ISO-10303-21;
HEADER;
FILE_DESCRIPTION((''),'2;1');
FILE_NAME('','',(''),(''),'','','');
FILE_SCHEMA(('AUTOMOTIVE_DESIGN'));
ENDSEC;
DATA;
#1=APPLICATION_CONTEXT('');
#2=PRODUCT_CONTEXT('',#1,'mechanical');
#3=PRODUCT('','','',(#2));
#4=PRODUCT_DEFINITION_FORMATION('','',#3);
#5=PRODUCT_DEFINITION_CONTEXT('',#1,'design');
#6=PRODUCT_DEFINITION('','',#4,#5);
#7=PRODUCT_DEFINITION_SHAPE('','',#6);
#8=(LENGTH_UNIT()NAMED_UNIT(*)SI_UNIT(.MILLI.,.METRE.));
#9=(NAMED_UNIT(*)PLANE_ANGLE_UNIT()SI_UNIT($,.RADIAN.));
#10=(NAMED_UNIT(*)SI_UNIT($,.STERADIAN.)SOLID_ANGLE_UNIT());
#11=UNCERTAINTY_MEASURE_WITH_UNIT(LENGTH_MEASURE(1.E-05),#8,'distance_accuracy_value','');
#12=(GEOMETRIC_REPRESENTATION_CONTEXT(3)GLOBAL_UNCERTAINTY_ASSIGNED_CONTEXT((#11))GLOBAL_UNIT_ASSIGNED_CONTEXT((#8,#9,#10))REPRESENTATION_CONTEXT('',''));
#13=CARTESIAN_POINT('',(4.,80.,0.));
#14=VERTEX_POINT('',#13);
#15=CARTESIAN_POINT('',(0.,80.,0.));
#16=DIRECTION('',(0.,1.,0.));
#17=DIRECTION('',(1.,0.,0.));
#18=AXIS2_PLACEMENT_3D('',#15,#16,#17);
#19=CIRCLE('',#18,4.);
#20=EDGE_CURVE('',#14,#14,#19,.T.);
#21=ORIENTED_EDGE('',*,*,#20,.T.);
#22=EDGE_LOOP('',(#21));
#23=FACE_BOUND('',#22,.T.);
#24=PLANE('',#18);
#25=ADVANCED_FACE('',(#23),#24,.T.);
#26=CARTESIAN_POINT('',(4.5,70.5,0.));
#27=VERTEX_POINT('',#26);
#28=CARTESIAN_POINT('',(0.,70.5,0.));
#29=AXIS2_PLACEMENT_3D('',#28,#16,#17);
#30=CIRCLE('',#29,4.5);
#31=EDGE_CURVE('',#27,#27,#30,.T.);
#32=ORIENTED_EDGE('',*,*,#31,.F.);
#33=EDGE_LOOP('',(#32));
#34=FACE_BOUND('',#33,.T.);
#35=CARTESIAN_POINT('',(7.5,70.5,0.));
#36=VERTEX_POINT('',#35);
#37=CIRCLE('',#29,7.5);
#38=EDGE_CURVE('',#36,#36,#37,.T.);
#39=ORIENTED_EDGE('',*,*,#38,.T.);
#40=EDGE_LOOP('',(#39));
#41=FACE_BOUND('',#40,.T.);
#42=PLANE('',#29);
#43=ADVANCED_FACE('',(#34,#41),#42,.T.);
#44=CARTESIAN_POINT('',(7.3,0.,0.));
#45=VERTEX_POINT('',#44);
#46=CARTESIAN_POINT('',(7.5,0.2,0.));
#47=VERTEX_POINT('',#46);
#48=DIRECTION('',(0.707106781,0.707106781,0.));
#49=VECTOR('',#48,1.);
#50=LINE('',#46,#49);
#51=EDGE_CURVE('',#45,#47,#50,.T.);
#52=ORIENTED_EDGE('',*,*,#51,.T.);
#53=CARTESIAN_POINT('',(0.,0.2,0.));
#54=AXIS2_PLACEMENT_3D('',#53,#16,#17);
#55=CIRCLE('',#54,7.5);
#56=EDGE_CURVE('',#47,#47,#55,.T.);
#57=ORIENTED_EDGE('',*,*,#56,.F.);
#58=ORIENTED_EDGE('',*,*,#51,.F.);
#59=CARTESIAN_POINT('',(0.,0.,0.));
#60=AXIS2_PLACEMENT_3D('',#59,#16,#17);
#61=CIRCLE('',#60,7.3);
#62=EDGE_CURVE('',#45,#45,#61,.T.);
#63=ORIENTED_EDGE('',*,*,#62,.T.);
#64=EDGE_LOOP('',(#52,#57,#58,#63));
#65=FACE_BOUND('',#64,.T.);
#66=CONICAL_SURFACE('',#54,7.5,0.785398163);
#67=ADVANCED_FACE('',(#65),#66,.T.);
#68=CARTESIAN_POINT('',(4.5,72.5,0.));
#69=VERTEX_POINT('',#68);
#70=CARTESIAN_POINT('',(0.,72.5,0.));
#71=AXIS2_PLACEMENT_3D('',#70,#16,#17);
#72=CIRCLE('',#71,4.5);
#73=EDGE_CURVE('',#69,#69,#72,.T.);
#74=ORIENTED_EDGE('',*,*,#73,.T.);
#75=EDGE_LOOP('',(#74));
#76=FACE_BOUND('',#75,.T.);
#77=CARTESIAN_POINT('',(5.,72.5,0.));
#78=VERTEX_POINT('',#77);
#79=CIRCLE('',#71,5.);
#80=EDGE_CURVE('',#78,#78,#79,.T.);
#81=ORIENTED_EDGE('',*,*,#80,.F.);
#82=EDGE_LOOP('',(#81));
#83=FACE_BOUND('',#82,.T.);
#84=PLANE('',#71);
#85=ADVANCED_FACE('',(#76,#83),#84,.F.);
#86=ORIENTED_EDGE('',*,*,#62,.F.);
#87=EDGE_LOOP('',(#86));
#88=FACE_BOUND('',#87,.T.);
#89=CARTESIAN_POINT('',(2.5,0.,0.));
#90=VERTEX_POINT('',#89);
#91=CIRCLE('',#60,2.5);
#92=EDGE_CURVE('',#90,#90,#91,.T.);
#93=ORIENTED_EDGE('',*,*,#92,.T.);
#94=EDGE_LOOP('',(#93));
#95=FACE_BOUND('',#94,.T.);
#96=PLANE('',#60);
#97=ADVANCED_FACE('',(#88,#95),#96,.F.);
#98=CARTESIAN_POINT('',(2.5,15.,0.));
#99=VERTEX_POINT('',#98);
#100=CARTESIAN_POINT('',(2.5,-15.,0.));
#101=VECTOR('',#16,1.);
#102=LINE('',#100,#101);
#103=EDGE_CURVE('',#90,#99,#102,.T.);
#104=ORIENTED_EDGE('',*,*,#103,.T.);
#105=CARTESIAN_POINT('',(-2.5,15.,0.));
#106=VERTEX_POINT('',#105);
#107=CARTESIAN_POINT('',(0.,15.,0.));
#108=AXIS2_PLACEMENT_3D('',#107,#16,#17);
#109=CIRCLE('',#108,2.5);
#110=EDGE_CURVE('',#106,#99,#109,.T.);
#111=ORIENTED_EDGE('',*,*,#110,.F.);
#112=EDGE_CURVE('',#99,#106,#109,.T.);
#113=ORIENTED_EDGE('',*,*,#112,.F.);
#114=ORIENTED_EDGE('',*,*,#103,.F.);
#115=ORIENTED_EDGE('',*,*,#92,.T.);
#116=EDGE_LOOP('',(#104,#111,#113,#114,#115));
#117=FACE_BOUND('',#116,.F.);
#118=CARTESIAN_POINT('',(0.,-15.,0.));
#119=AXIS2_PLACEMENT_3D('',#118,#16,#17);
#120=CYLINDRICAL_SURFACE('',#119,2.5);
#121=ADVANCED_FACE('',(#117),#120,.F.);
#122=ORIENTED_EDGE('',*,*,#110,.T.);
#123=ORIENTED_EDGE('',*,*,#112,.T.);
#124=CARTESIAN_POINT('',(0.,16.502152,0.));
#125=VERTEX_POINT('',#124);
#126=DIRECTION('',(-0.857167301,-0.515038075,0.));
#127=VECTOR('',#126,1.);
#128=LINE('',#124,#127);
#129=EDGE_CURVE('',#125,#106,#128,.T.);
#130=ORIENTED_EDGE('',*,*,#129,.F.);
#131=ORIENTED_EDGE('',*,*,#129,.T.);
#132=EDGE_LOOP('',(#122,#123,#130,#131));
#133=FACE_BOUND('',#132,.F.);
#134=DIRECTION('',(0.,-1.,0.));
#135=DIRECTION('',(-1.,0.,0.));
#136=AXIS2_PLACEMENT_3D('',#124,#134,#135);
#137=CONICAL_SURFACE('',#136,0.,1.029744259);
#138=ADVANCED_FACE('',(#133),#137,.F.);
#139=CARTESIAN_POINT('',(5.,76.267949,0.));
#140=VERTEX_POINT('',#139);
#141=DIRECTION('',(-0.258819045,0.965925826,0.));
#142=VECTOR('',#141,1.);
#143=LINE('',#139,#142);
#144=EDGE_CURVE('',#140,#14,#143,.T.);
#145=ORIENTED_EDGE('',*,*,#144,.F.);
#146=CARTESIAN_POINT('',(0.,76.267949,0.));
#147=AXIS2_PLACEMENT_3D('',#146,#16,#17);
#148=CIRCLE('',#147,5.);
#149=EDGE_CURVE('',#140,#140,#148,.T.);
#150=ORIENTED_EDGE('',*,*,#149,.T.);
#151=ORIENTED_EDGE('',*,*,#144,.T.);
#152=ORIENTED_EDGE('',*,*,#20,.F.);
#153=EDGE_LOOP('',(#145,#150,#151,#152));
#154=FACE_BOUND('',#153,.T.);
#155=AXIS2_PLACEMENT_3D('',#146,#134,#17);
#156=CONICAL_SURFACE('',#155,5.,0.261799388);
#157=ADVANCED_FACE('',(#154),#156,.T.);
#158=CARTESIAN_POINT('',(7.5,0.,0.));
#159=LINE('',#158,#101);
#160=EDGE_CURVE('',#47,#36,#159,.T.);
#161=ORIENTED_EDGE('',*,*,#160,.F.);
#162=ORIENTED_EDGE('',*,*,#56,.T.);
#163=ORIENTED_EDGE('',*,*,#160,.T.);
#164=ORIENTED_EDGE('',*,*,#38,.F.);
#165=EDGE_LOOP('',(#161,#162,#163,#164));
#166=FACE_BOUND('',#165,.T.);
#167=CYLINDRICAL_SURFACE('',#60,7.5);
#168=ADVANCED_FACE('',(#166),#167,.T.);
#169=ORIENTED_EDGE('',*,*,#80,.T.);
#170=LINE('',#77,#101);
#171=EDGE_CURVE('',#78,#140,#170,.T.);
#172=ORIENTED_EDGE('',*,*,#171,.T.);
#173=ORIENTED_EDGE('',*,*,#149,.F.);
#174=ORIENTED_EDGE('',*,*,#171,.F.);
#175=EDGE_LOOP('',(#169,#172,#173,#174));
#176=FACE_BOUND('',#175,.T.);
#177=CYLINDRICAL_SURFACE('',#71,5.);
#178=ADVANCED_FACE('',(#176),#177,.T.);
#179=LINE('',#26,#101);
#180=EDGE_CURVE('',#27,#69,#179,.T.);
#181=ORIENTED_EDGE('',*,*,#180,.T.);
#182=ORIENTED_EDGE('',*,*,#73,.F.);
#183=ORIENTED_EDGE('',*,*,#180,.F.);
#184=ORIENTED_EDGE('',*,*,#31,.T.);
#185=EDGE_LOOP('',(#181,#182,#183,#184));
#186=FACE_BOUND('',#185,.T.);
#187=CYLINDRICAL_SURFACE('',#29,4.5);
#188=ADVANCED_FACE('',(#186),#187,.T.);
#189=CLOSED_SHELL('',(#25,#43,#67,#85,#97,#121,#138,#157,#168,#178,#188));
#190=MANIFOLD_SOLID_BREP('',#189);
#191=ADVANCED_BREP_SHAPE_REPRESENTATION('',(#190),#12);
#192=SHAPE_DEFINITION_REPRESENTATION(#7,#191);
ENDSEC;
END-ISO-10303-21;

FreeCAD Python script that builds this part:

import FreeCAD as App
import Part
import Sketcher
Q = App.Units.Quantity


def edges_at(feature, points):
    """Names of the edges that pass closest to the given points."""
    edges = feature.Shape.Edges
    near = lambda p: min(range(len(edges)), key=lambda i: edges[i].distToShape(Part.Vertex(*p))[0])
    return sorted({f"Edge{near(p) + 1}" for p in points})


def add_polygon(sketch, points):
    """Adds a closed chain of lines whose ends are joined by coincident constraints."""
    first, n = sketch.GeometryCount, len(points)
    for a, b in zip(points, points[1:] + points[:1]):
        sketch.addGeometry(Part.LineSegment(App.Vector(*a, 0), App.Vector(*b, 0)), False)
    for i in range(n):
        sketch.addConstraint(Sketcher.Constraint("Coincident", first + i, 2, first + (i + 1) % n, 1))

doc = App.newDocument("Part")
params = doc.addObject("Spreadsheet::Sheet", "Params")
for row, (alias, value) in enumerate([
    ("sketch1_width", "3 mm"),
    ("sketch1_width2", "4 mm"),
    ("sketch1_height", "2 mm"),
    ("sketch1_height2", "80 mm"),
    ("sketch1_width3", "7.5 mm"),
    ("revolution_angle", "360 deg"),
    ("sketch2_diameter", "5 mm"),
    ("hole_diameter", "5 mm"),
    ("hole_depth", "15 mm"),
    ("chamfer_size", "0.2 mm"),
], start=1):
    params.set(f"A{row}", alias)
    params.set(f"B{row}", "=" + value)
    params.setAlias(f"B{row}", alias)

body = doc.addObject("PartDesign::Body", "Body")

# Sketch on XY plane
sketch1 = doc.addObject("Sketcher::SketchObject", "Sketch")
body.addObject(sketch1)
sketch1.AttachmentSupport = (doc.XY_Plane, [""])
sketch1.MapMode = "FlatFace"
add_polygon(sketch1, [(0, 0), (7.5, 0), (7.5, 70.5), (4.5, 70.5), (4.5, 72.5), (5, 72.5), (5, 76.3), (4, 80), (0, 80)])  # lines 0-8
sketch1.addConstraint([
    Sketcher.Constraint("Horizontal", 0),
    Sketcher.Constraint("Vertical", 1),
    Sketcher.Constraint("Horizontal", 2),
    Sketcher.Constraint("Vertical", 3),
    Sketcher.Constraint("Horizontal", 4),
    Sketcher.Constraint("Vertical", 5),
    Sketcher.Constraint("Horizontal", 7),
    Sketcher.Constraint("Vertical", 8),
    Sketcher.Constraint("Coincident", 8, 2, -1, 1),
    Sketcher.Constraint("DistanceX", 2, 2, 2, 1, 3.0),
    Sketcher.Constraint("DistanceX", 7, 2, 7, 1, 4.0),
    Sketcher.Constraint("DistanceY", 3, 1, 3, 2, 2.0),
    Sketcher.Constraint("DistanceY", 8, 2, 8, 1, 80.0),
    Sketcher.Constraint("Angle", 6, Q("105 deg")),
    Sketcher.Constraint("DistanceX", 0, 1, 0, 2, 7.5),
    Sketcher.Constraint("DistanceX", 4, 1, 4, 2, 0.5),
    Sketcher.Constraint("DistanceY", 1, 1, 1, 2, 70.5),
])
sketch1.setExpression("Constraints[18]", "Params.sketch1_width")
sketch1.setExpression("Constraints[19]", "Params.sketch1_width2")
sketch1.setExpression("Constraints[20]", "Params.sketch1_height")
sketch1.setExpression("Constraints[21]", "Params.sketch1_height2")
sketch1.setExpression("Constraints[23]", "Params.sketch1_width3")
revolution = doc.addObject("PartDesign::Revolution", "Revolution")
body.addObject(revolution)
revolution.Profile = sketch1
revolution.ReferenceAxis = (sketch1, ["V_Axis"])
revolution.setExpression("Angle", "Params.revolution_angle")

# Sketch on XZ plane
sketch2 = doc.addObject("Sketcher::SketchObject", "Sketch001")
body.addObject(sketch2)
sketch2.AttachmentSupport = (doc.XZ_Plane, [""])
sketch2.MapMode = "FlatFace"
sketch2.addGeometry(Part.Circle(App.Vector(0, 0, 0), App.Vector(0, 0, 1), 2.5), False)
sketch2.addConstraint([
    Sketcher.Constraint("Coincident", 0, 3, -1, 1),
    Sketcher.Constraint("Diameter", 0, 5.0),
])
sketch2.setExpression("Constraints[1]", "Params.sketch2_diameter")
doc.recompute()
hole = doc.addObject("PartDesign::Hole", "Hole")
body.addObject(hole)
hole.Profile = sketch2
hole.ThreadType = "None"
hole.setExpression("Diameter", "Params.hole_diameter")
hole.DepthType = "Dimension"
hole.setExpression("Depth", "Params.hole_depth")
hole.DrillPoint = "Angled"
hole.DrillPointAngle = 118
doc.recompute()

chamfer = doc.addObject("PartDesign::Chamfer", "Chamfer")
body.addObject(chamfer)
chamfer.Base = (hole, edges_at(hole, [(-7.5, 0, 0)]))
chamfer.setExpression("Size", "Params.chamfer_size")

doc.recompute()
